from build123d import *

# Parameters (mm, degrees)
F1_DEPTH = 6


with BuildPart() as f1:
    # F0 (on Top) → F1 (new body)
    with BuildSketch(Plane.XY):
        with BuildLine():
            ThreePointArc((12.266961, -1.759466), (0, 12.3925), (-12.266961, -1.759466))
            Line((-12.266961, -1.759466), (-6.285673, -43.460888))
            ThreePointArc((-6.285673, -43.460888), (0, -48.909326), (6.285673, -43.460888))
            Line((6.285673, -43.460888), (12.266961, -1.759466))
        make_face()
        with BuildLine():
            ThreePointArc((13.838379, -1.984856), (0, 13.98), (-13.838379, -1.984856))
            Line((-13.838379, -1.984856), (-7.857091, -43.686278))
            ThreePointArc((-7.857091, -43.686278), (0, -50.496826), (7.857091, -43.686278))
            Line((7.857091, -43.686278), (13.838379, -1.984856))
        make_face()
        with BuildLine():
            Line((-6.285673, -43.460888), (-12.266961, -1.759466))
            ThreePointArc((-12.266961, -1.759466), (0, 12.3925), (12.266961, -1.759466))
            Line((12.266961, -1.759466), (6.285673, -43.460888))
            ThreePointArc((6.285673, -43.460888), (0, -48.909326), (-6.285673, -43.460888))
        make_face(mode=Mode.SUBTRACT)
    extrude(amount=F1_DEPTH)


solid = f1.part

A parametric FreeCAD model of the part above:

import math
import FreeCAD as App
import Part
import Sketcher
from FreeCAD import Vector
Q = App.Units.Quantity

doc = App.newDocument("Part")
body = doc.addObject("PartDesign::Body", "Body")

# Sketch on XY plane
sketch1 = body.newObject("Sketcher::SketchObject", "Sketch")
sketch1.AttachmentSupport = (doc.getObject("XY_Plane"), [""])
sketch1.MapMode = "FlatFace"
sketch1.addGeometry([
    Part.ArcOfCircle(Part.Circle(Vector(0, 0, 0), Vector(0, 0, 1), 13.98), math.radians(-8.162337), math.radians(188.162337)),  # 0
    Part.LineSegment(Vector(-13.838379, -1.984856, 0), Vector(-7.857091, -43.686278, 0)),  # 1
    Part.ArcOfCircle(Part.Circle(Vector(0, -42.559326, 0), Vector(0, 0, 1), 7.9375), math.radians(-171.83767), math.radians(-8.16233)),  # 2
    Part.LineSegment(Vector(7.857091, -43.686278, 0), Vector(13.838379, -1.984856, 0)),  # 3
    Part.ArcOfCircle(Part.Circle(Vector(0, -42.559326, 0), Vector(0, 0, 1), 6.35), math.radians(-171.837664), math.radians(-8.162336)),  # 4
    Part.LineSegment(Vector(-6.285673, -43.460888, 0), Vector(-12.266961, -1.759466, 0)),  # 5
    Part.ArcOfCircle(Part.Circle(Vector(0, 0, 0), Vector(0, 0, 1), 12.3925), math.radians(-8.162338), math.radians(188.162338)),  # 6
    Part.LineSegment(Vector(12.266961, -1.759466, 0), Vector(6.285673, -43.460888, 0)),  # 7
], False)
sketch1.addConstraint([
    Sketcher.Constraint("Tangent", 0, 2, 1, 1),
    Sketcher.Constraint("Tangent", 1, 2, 2, 1),
    Sketcher.Constraint("Tangent", 2, 2, 3, 1),
    Sketcher.Constraint("Tangent", 3, 2, 0, 1),
    Sketcher.Constraint("Tangent", 4, 1, 5, 1),
    Sketcher.Constraint("Tangent", 5, 2, 6, 2),
    Sketcher.Constraint("Tangent", 6, 1, 7, 1),
    Sketcher.Constraint("Tangent", 7, 2, 4, 2),
    Sketcher.Constraint("Coincident", 0, 3, -1, 1),
    Sketcher.Constraint("Coincident", 6, 3, -1, 1),
    Sketcher.Constraint("Coincident", 4, 3, 2, 3),
    Sketcher.Constraint("PointOnObject", 2, 3, -2),
    Sketcher.Constraint("Parallel", 1, 5),
    Sketcher.Constraint("Radius", 4, Q("0.25 in")),
    Sketcher.Constraint("Radius", 2, Q("0.3125 in")),
    Sketcher.Constraint("Radius", 0, Q("13.98 mm")),
    Sketcher.Constraint("Distance", 1, Q("42.12819 mm")),
])
pad1 = body.newObject("PartDesign::Pad", "Pad")
pad1.Profile = sketch1
pad1.Length = 6

doc.recompute()
